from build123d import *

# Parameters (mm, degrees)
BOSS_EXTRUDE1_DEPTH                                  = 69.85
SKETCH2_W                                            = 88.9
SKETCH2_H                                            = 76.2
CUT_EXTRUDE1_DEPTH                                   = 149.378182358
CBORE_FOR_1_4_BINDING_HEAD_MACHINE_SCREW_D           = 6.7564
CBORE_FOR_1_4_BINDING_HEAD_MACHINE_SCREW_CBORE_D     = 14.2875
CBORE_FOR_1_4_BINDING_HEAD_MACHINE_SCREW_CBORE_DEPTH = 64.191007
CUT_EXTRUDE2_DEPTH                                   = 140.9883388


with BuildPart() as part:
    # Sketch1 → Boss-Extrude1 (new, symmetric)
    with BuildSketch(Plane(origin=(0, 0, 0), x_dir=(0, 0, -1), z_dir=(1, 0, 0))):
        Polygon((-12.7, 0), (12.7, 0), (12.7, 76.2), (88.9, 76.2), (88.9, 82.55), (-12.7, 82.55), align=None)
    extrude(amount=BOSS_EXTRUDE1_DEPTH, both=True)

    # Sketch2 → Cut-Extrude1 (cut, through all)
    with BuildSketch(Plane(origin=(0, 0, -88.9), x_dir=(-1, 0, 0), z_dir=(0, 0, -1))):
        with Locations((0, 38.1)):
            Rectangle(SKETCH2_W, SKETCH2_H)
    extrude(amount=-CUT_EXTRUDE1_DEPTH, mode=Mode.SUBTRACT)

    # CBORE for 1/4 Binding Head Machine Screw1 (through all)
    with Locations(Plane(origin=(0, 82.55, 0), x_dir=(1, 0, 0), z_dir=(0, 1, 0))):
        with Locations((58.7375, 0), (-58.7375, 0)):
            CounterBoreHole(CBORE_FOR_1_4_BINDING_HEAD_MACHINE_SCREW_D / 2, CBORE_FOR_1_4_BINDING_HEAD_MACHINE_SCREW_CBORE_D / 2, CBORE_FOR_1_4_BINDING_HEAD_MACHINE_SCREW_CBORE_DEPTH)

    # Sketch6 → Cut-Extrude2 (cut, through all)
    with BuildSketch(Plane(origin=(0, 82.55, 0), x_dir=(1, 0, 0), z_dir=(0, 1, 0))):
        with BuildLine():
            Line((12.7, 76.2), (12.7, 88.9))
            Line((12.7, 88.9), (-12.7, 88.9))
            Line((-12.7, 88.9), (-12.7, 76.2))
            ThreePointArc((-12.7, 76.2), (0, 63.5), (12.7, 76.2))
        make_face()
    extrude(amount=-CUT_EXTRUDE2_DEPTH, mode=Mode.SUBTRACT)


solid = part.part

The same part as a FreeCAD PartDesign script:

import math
import FreeCAD as App
import Part
import Sketcher
Q = App.Units.Quantity


def add_polygon(sketch, points):
    """Adds a closed chain of lines whose ends are joined by coincident constraints."""
    first, n = sketch.GeometryCount, len(points)
    for a, b in zip(points, points[1:] + points[:1]):
        sketch.addGeometry(Part.LineSegment(App.Vector(*a, 0), App.Vector(*b, 0)), False)
    for i in range(n):
        sketch.addConstraint(Sketcher.Constraint("Coincident", first + i, 2, first + (i + 1) % n, 1))

doc = App.newDocument("Part")
body = doc.addObject("PartDesign::Body", "Body")

# Sketch on YZ plane
sketch1 = body.newObject("Sketcher::SketchObject", "Sketch")
sketch1.AttachmentSupport = (doc.getObject("YZ_Plane"), [""])
sketch1.MapMode = "FlatFace"
add_polygon(sketch1, [(0, 13), (0, -13), (76, -13), (76, -89), (83, -89), (83, 13)])  # lines 0-5
sketch1.addConstraint(Sketcher.Constraint("Vertical", 0))
sketch1.addConstraint(Sketcher.Constraint("Horizontal", 1))
sketch1.addConstraint(Sketcher.Constraint("Vertical", 2))
sketch1.addConstraint(Sketcher.Constraint("Horizontal", 3))
sketch1.addConstraint(Sketcher.Constraint("Vertical", 4))
sketch1.addConstraint(Sketcher.Constraint("Horizontal", 5))
sketch1.addConstraint(Sketcher.Constraint("Symmetric", 0, 2, 5, 2, -1, 1))
sketch1.addConstraint(Sketcher.Constraint("Equal", 1, 2))
sketch1.addConstraint(Sketcher.Constraint("DistanceX", 1, 1, 1, 2, Q("3 in")))
sketch1.addConstraint(Sketcher.Constraint("DistanceY", 0, 2, 0, 1, Q("1 in")))
sketch1.addConstraint(Sketcher.Constraint("DistanceX", 3, 1, 3, 2, Q("0.25 in")))
pad1 = body.newObject("PartDesign::Pad", "Pad")
pad1.Profile = sketch1
pad1.Length = Q("5.5 in")
pad1.Midplane = True

# Sketch on XY plane
sketch2 = body.newObject("Sketcher::SketchObject", "Sketch001")
sketch2.AttachmentSupport = (doc.getObject("XY_Plane"), [""])
sketch2.MapMode = "FlatFace"
sketch2.AttachmentOffset = App.Placement(App.Vector(0, 0, -3.5 * 25.4), App.Rotation())
add_polygon(sketch2, [(44, 76), (44, 0), (-44, 0), (-44, 76)])  # lines 0-3
sketch2.addConstraint(Sketcher.Constraint("Vertical", 0))
sketch2.addConstraint(Sketcher.Constraint("Horizontal", 1))
sketch2.addConstraint(Sketcher.Constraint("Vertical", 2))
sketch2.addConstraint(Sketcher.Constraint("Horizontal", 3))
sketch2.addConstraint(Sketcher.Constraint("Symmetric", 0, 2, 1, 2, -1, 1))
sketch2.addConstraint(Sketcher.Constraint("DistanceY", 0, 2, 0, 1, Q("3 in")))
sketch2.addConstraint(Sketcher.Constraint("DistanceX", 1, 2, 1, 1, Q("3.5 in")))
pocket1 = body.newObject("PartDesign::Pocket", "Pocket")
pocket1.Profile = sketch2
pocket1.Type = "ThroughAll"
pocket1.Reversed = True

# Sketch on XZ plane
sketch3 = body.newObject("Sketcher::SketchObject", "Sketch002")
sketch3.AttachmentSupport = (doc.getObject("XZ_Plane"), [""])
sketch3.MapMode = "FlatFace"
sketch3.AttachmentOffset = App.Placement(App.Vector(0, 0, -3.25 * 25.4), App.Rotation())
sketch3.addGeometry(Part.Circle(App.Vector(58.7, 0, 0), App.Vector(0, 0, 1), 3.4), False)
sketch3.addGeometry(Part.Circle(App.Vector(-58.7, 0, 0), App.Vector(0, 0, 1), 3.4), False)
sketch3.addConstraint(Sketcher.Constraint("Equal", 0, 1))
sketch3.addConstraint(Sketcher.Constraint("Symmetric", 0, 3, 1, 3, -1, 1))
sketch3.addConstraint(Sketcher.Constraint("PointOnObject", 0, 3, -1))
sketch3.addConstraint(Sketcher.Constraint("Diameter", 0, Q("0.266 in")))
sketch3.addConstraint(Sketcher.Constraint("DistanceX", -1, 1, 0, 3, Q("2.3125 in")))
doc.recompute()
hole = body.newObject("PartDesign::Hole", "Hole")
hole.Profile = sketch3
hole.ThreadType = "None"
hole.Diameter = Q("0.266 in")
hole.DepthType = "ThroughAll"
hole.HoleCutType = "Counterbore"
hole.HoleCutDiameter = Q("0.5625 in")
hole.HoleCutDepth = 64.191007
hole.Reversed = True

# Sketch on XZ plane
sketch4 = body.newObject("Sketcher::SketchObject", "Sketch003")
sketch4.AttachmentSupport = (doc.getObject("XZ_Plane"), [""])
sketch4.MapMode = "FlatFace"
sketch4.AttachmentOffset = App.Placement(App.Vector(0, 0, -3.25 * 25.4), App.Rotation())
sketch4.addGeometry(Part.LineSegment(App.Vector(13, -76, 0), App.Vector(13, -89, 0)), False)
sketch4.addGeometry(Part.LineSegment(App.Vector(13, -89, 0), App.Vector(-13, -89, 0)), False)
sketch4.addGeometry(Part.LineSegment(App.Vector(-13, -89, 0), App.Vector(-13, -76, 0)), False)
sketch4.addGeometry(Part.ArcOfCircle(Part.Circle(App.Vector(0, -76, 0), App.Vector(0, 0, 1), 13), math.radians(0), math.radians(180)), False)
sketch4.addConstraint(Sketcher.Constraint("Coincident", 0, 2, 1, 1))
sketch4.addConstraint(Sketcher.Constraint("Coincident", 1, 2, 2, 1))
sketch4.addConstraint(Sketcher.Constraint("Tangent", 2, 2, 3, 2))
sketch4.addConstraint(Sketcher.Constraint("Tangent", 3, 1, 0, 1))
sketch4.addConstraint(Sketcher.Constraint("Vertical", 0))
sketch4.addConstraint(Sketcher.Constraint("Horizontal", 1))
sketch4.addConstraint(Sketcher.Constraint("Vertical", 2))
sketch4.addConstraint(Sketcher.Constraint("PointOnObject", 3, 3, -2))
sketch4.addConstraint(Sketcher.Constraint("Radius", 3, Q("0.5 in")))
sketch4.addConstraint(Sketcher.Constraint("DistanceY", 0, 2, 0, 1, Q("0.5 in")))
sketch4.addConstraint(Sketcher.Constraint("DistanceY", 3, 3, -1, 1, Q("3 in")))
pocket2 = body.newObject("PartDesign::Pocket", "Pocket001")
pocket2.Profile = sketch4
pocket2.Type = "ThroughAll"
pocket2.Reversed = True

doc.recompute()
